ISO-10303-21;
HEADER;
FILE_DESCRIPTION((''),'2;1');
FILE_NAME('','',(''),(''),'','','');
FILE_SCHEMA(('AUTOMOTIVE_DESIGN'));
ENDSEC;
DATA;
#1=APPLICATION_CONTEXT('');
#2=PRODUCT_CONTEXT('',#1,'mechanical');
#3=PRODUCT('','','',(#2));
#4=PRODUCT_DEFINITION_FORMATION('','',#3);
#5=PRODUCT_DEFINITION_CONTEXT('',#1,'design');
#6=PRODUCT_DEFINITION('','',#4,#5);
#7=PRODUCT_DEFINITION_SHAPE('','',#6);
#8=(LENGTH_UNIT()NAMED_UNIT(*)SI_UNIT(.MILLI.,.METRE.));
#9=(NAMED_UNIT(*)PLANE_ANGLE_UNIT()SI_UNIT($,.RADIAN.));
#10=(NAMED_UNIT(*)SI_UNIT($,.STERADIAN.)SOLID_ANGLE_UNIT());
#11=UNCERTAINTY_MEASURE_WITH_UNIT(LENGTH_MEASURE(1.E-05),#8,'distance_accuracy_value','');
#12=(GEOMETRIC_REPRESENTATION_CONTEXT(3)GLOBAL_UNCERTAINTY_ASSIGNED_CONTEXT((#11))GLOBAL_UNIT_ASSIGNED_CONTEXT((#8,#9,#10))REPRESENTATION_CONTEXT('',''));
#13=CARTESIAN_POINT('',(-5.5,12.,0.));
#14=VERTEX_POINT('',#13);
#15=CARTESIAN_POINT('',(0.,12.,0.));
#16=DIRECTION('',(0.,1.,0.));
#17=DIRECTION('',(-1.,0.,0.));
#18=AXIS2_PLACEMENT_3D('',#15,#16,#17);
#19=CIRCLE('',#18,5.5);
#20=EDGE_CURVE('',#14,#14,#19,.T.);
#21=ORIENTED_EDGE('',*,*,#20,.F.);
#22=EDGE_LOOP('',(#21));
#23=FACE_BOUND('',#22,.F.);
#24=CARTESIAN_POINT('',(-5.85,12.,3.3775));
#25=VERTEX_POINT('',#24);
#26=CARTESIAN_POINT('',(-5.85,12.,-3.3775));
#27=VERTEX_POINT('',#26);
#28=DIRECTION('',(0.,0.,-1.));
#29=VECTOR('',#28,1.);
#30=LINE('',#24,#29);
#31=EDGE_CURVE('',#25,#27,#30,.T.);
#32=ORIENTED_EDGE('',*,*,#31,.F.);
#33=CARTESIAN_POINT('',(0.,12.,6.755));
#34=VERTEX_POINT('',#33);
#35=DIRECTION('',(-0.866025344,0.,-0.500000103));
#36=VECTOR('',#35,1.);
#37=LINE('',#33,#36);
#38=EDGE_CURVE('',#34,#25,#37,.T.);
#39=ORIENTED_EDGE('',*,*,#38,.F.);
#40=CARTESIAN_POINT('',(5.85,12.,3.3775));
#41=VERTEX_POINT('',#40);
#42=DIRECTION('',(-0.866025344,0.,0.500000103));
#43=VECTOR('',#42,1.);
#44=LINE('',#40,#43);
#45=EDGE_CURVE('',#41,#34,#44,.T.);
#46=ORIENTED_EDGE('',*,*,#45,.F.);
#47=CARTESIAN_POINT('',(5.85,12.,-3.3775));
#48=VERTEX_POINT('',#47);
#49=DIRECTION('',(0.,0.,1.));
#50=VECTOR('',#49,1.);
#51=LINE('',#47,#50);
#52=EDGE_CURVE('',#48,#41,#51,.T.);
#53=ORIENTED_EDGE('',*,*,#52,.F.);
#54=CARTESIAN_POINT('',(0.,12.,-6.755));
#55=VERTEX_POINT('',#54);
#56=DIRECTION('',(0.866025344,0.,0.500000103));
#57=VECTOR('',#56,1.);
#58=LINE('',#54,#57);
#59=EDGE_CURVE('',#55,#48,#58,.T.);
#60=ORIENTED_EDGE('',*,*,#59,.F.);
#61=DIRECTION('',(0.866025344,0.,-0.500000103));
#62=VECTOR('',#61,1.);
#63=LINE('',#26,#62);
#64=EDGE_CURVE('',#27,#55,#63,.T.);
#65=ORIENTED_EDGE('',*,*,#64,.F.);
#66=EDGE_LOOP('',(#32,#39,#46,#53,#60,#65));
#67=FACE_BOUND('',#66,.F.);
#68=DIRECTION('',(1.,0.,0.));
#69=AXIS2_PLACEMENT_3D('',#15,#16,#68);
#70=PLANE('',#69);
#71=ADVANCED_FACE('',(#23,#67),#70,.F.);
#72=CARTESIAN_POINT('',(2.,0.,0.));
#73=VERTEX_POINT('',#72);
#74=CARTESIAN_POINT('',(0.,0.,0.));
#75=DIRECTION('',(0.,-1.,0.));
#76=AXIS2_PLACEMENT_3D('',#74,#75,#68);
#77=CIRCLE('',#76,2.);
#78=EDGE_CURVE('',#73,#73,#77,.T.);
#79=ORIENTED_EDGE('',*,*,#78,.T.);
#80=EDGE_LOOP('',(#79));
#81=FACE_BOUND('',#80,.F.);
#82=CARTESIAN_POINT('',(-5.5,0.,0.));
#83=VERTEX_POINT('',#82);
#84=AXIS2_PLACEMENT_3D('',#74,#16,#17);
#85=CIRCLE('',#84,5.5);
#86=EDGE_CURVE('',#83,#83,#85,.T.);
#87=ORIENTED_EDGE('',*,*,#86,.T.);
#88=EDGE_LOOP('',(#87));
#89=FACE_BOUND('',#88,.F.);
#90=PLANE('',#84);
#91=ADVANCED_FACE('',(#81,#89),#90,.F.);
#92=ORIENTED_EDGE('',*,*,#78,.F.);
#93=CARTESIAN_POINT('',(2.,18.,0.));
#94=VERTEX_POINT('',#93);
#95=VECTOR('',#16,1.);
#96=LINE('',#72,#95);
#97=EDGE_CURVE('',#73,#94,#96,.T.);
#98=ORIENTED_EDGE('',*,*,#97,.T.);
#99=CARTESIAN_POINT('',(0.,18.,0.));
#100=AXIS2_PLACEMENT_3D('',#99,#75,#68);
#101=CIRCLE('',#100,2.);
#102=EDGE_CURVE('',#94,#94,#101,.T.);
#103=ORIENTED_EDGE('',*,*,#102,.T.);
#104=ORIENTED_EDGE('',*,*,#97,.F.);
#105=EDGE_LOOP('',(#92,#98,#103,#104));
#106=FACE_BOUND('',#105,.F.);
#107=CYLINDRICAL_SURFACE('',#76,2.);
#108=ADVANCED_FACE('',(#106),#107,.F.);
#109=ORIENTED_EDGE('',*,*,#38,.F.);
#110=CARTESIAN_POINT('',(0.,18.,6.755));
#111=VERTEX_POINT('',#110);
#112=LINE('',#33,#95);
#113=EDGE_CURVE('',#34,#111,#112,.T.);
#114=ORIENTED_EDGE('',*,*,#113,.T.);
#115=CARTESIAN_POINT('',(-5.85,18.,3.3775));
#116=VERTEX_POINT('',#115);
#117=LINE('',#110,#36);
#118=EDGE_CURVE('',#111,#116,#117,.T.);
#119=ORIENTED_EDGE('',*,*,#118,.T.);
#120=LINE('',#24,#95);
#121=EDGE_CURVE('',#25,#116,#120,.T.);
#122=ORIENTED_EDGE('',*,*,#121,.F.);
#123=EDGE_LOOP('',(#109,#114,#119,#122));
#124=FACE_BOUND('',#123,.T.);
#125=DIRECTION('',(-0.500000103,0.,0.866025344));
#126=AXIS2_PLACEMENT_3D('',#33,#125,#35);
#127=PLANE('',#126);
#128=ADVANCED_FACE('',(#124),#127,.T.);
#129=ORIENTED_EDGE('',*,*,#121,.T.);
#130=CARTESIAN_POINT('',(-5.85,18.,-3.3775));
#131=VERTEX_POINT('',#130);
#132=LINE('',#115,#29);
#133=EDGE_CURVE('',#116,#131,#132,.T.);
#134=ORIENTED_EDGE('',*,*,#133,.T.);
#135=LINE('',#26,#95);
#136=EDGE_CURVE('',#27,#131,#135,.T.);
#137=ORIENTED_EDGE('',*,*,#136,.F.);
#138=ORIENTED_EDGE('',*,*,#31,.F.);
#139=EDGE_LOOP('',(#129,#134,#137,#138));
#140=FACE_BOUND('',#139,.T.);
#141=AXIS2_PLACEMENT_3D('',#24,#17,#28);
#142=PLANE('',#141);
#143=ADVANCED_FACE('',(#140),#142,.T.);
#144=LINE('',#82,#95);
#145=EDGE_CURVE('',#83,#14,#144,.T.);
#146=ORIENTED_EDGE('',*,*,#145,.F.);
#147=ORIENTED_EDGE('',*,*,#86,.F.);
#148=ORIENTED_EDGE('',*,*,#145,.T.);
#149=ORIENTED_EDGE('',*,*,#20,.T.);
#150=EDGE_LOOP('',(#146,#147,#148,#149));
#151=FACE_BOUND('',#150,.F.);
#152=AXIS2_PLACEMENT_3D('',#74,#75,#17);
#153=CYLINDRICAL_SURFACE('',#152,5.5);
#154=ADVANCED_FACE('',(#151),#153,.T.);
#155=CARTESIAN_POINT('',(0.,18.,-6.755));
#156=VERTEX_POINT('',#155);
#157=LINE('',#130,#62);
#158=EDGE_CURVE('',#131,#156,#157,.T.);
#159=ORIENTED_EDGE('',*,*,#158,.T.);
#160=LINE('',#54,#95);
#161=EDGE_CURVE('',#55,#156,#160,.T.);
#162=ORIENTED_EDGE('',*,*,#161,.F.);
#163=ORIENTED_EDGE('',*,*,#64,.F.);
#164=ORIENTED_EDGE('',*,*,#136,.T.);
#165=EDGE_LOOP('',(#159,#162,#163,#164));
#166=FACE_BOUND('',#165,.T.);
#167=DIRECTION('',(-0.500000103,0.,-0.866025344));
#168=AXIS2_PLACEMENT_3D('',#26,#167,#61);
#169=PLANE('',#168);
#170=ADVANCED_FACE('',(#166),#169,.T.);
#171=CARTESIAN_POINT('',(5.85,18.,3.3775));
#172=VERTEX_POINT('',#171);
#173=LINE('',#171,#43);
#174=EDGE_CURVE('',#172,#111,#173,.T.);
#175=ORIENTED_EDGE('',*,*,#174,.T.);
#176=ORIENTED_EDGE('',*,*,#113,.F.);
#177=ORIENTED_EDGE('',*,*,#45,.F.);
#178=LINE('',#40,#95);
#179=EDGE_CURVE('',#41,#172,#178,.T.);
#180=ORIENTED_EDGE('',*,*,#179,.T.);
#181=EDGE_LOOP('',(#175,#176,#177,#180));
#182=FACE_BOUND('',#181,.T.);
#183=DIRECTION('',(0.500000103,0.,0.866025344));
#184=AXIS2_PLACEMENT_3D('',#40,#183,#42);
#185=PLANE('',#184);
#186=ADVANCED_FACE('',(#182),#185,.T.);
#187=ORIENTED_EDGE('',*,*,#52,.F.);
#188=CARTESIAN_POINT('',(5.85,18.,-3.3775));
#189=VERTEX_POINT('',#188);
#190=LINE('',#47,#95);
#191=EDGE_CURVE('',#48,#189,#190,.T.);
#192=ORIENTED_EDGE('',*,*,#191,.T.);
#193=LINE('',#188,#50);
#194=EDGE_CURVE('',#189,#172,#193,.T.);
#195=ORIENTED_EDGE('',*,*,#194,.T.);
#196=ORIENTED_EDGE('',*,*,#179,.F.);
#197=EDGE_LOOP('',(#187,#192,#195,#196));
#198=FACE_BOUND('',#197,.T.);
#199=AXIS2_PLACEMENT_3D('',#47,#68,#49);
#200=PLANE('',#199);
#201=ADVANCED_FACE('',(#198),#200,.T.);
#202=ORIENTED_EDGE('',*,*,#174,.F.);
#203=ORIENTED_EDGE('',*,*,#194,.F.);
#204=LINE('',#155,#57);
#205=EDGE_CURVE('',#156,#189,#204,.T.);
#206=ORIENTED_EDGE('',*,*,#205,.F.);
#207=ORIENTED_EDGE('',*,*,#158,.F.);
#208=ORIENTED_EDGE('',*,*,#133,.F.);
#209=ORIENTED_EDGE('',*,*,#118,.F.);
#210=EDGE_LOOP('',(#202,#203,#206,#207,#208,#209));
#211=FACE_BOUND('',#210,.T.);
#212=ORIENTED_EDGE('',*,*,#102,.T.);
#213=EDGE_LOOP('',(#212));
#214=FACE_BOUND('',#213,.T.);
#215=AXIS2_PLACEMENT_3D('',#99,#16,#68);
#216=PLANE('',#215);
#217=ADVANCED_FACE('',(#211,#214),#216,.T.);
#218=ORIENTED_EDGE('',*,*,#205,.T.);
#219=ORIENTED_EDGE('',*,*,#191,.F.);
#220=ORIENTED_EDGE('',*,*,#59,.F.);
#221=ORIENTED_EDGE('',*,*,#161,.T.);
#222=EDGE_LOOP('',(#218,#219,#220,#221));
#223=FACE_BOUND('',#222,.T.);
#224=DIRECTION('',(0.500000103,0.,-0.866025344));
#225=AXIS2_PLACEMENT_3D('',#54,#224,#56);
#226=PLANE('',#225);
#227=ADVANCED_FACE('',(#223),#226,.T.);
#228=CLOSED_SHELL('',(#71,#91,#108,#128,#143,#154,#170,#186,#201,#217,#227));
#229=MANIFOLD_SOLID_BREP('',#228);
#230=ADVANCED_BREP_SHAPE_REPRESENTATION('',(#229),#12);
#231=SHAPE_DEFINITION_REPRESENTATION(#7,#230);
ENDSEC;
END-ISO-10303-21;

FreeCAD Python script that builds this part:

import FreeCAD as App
import Part
import Sketcher

V = App.Vector
Q = App.Units.Quantity


def add_polygon(sketch, points):
    """Adds a closed chain of lines whose ends are joined by coincident constraints."""
    first, n = sketch.GeometryCount, len(points)
    for a, b in zip(points, points[1:] + points[:1]):
        sketch.addGeometry(Part.LineSegment(App.Vector(*a, 0), App.Vector(*b, 0)), False)
    for i in range(n):
        sketch.addConstraint(Sketcher.Constraint("Coincident", first + i, 2, first + (i + 1) % n, 1))

doc = App.newDocument("Part")
body = doc.addObject("PartDesign::Body", "Body")

sketch1 = body.newObject("Sketcher::SketchObject", "Sketch")
sketch1.AttachmentSupport = (doc.getObject("XZ_Plane"), [""])
sketch1.MapMode = "FlatFace"
sketch1.addGeometry(Part.Circle(V(0, 0, 0), V(0, 0, 1), 6), False)
sketch1.addConstraint([
    Sketcher.Constraint("Coincident", 0, 3, -1, 1),
    Sketcher.Constraint("Diameter", 0, 11.0),
])
pad1 = body.newObject("PartDesign::Pad", "Pad")
pad1.Profile = sketch1
pad1.Length = 12
pad1.Reversed = True

sketch2 = body.newObject("Sketcher::SketchObject", "Sketch001")
sketch2.AttachmentSupport = (doc.getObject("XZ_Plane"), [""])
sketch2.MapMode = "FlatFace"
sketch2.AttachmentOffset = App.Placement(V(0, 0, -12), App.Rotation())
add_polygon(sketch2, [(0, 7), (6, 3), (6, -3), (0, -7), (-6, -3), (-6, 3)])
sketch2.addConstraint([
    Sketcher.Constraint("Vertical", 1),
    Sketcher.Constraint("Vertical", 4),
    Sketcher.Constraint("Symmetric", 0, 2, 3, 2, -1, 1),
    Sketcher.Constraint("Symmetric", 2, 2, 5, 2, -1, 1),
    Sketcher.Constraint("PointOnObject", 2, 2, -2),
    Sketcher.Constraint("Parallel", 2, 5),
    Sketcher.Constraint("Horizontal", 1, 2, 3, 2),
    Sketcher.Constraint("DistanceX", 3, 2, 1, 2, 11.7),
    Sketcher.Constraint("Angle", 0, Q("-30 deg")),
    Sketcher.Constraint("DistanceY", 1, 2, 1, 1, 6.755),
])
pad2 = body.newObject("PartDesign::Pad", "Pad001")
pad2.Profile = sketch2
pad2.Length = 6
pad2.Reversed = True

sketch3 = body.newObject("Sketcher::SketchObject", "Sketch002")
sketch3.AttachmentSupport = (doc.getObject("XZ_Plane"), [""])
sketch3.MapMode = "FlatFace"
sketch3.addGeometry(Part.Circle(V(0, 0, 0), V(0, 0, 1), 2), False)
sketch3.addConstraint([
    Sketcher.Constraint("Coincident", 0, 3, -1, 1),
    Sketcher.Constraint("Diameter", 0, 4.0),
])
pocket1 = body.newObject("PartDesign::Pocket", "Pocket")
pocket1.Profile = sketch3
pocket1.Length = 18

doc.recompute()
